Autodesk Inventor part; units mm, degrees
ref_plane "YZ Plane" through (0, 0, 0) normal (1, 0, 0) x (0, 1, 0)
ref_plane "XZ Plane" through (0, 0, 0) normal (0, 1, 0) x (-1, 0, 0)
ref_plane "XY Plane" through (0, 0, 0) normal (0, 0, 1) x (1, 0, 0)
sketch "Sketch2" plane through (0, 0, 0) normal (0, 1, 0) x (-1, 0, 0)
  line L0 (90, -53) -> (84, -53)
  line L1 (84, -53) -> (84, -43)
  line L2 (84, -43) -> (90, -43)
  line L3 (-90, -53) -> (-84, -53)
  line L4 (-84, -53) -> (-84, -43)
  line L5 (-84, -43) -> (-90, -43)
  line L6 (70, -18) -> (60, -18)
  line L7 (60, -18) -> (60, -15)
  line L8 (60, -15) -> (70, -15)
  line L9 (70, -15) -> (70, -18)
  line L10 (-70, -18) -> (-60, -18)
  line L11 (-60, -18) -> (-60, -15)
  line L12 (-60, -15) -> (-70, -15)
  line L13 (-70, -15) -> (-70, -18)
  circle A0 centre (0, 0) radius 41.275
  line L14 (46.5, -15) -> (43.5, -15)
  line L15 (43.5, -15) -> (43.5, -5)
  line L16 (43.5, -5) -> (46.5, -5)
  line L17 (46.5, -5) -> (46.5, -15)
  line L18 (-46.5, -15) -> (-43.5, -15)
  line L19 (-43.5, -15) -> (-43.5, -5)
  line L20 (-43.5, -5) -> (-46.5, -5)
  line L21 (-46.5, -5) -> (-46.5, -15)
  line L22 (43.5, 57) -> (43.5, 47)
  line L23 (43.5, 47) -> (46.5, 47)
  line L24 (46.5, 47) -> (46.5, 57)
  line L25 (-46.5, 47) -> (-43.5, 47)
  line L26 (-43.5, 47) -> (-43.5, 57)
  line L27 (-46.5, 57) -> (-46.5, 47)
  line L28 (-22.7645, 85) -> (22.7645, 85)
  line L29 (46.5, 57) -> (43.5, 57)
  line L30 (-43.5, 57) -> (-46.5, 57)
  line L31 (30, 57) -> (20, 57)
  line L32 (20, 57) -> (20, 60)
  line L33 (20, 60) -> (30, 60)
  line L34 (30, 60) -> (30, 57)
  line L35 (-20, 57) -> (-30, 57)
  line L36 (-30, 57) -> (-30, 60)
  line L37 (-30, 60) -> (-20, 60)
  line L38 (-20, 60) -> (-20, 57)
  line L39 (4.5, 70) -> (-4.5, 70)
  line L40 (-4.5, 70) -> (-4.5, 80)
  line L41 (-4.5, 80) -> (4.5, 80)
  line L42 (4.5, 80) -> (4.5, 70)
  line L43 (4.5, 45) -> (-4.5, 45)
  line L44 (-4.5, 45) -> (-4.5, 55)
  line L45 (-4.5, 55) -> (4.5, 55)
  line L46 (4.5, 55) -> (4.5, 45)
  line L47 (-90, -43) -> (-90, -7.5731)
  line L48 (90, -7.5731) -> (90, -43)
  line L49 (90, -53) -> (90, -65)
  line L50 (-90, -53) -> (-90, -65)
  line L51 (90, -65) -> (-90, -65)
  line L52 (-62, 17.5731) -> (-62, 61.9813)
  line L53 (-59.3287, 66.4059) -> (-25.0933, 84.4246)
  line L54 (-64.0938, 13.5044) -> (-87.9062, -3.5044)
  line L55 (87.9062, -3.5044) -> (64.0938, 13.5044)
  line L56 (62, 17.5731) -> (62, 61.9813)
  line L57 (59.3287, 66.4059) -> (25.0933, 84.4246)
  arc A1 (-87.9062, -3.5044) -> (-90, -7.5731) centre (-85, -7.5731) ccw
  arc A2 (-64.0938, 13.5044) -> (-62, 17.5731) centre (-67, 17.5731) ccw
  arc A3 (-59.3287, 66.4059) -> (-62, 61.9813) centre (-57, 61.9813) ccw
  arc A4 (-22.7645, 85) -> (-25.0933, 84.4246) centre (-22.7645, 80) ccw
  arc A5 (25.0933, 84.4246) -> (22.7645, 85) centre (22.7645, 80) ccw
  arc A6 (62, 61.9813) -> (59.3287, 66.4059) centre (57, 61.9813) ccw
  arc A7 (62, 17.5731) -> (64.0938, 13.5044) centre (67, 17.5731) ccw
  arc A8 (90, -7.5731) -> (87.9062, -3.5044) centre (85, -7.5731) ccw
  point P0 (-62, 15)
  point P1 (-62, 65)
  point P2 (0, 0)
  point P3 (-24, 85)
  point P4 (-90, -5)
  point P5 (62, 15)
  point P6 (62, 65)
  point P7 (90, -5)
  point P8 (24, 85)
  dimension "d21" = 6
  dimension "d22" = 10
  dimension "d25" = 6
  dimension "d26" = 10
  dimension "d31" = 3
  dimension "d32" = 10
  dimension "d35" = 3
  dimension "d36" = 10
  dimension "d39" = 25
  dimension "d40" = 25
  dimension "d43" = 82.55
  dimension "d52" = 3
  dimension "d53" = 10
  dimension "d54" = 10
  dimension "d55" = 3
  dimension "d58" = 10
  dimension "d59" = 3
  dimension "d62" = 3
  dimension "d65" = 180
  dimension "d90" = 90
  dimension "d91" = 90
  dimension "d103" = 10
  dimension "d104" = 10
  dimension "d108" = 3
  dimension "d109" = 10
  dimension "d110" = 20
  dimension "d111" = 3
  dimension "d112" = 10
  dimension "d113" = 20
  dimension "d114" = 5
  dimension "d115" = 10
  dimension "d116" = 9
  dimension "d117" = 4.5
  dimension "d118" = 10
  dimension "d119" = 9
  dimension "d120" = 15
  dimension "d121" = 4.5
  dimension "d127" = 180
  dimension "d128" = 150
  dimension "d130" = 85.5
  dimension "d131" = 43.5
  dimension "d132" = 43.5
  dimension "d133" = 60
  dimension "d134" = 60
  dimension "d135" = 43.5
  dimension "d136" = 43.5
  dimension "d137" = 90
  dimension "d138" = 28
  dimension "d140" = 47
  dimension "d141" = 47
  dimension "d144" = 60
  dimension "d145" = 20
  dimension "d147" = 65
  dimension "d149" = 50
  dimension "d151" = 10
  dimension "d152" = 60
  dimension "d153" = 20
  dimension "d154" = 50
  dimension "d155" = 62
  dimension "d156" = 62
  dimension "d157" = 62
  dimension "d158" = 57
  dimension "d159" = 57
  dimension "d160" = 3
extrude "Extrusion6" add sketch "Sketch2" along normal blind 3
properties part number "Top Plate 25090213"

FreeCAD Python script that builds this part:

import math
import FreeCAD as App
import Part
import Sketcher

V = App.Vector


def add_polygon(sketch, points):
    """Adds a closed chain of lines whose ends are joined by coincident constraints."""
    first, n = sketch.GeometryCount, len(points)
    for a, b in zip(points, points[1:] + points[:1]):
        sketch.addGeometry(Part.LineSegment(App.Vector(*a, 0), App.Vector(*b, 0)), False)
    for i in range(n):
        sketch.addConstraint(Sketcher.Constraint("Coincident", first + i, 2, first + (i + 1) % n, 1))

doc = App.newDocument("Part")
body = doc.addObject("PartDesign::Body", "Body")

# Sketch on XZ plane
sketch1 = body.newObject("Sketcher::SketchObject", "Sketch")
sketch1.AttachmentSupport = (doc.getObject("XZ_Plane"), [""])
sketch1.MapMode = "FlatFace"
sketch1.addGeometry(Part.LineSegment(V(-90, -65, 0), V(-90, -53, 0)), False)  # 0
sketch1.addGeometry(Part.LineSegment(V(-90, -53, 0), V(-84, -53, 0)), False)  # 1
sketch1.addGeometry(Part.LineSegment(V(-84, -53, 0), V(-84, -43, 0)), False)  # 2
sketch1.addGeometry(Part.LineSegment(V(-84, -43, 0), V(-90, -43, 0)), False)  # 3
sketch1.addGeometry(Part.LineSegment(V(-90, -43, 0), V(-90, -7.6, 0)), False)  # 4
sketch1.addGeometry(Part.ArcOfCircle(Part.Circle(V(-85, -7.6, 0), V(0, 0, 1), 5), math.radians(126), math.radians(180)), False)  # 5
sketch1.addGeometry(Part.LineSegment(V(-87.9, -3.5, 0), V(-64.1, 13.5, 0)), False)  # 6
sketch1.addGeometry(Part.ArcOfCircle(Part.Circle(V(-67, 17.6, 0), V(0, 0, 1), 5), math.radians(-54), math.radians(0)), False)  # 7
sketch1.addGeometry(Part.LineSegment(V(-62, 17.6, 0), V(-62, 62, 0)), False)  # 8
sketch1.addGeometry(Part.ArcOfCircle(Part.Circle(V(-57, 62, 0), V(0, 0, 1), 5), math.radians(118), math.radians(180)), False)  # 9
sketch1.addGeometry(Part.LineSegment(V(-59.3, 66.4, 0), V(-25.1, 84.4, 0)), False)  # 10
sketch1.addGeometry(Part.ArcOfCircle(Part.Circle(V(-22.8, 80, 0), V(0, 0, 1), 5), math.radians(90), math.radians(118)), False)  # 11
sketch1.addGeometry(Part.LineSegment(V(-22.8, 85, 0), V(22.8, 85, 0)), False)  # 12
sketch1.addGeometry(Part.ArcOfCircle(Part.Circle(V(22.8, 80, 0), V(0, 0, 1), 5), math.radians(62), math.radians(90)), False)  # 13
sketch1.addGeometry(Part.LineSegment(V(25.1, 84.4, 0), V(59.3, 66.4, 0)), False)  # 14
sketch1.addGeometry(Part.ArcOfCircle(Part.Circle(V(57, 62, 0), V(0, 0, 1), 5), math.radians(0), math.radians(62)), False)  # 15
sketch1.addGeometry(Part.LineSegment(V(62, 62, 0), V(62, 17.6, 0)), False)  # 16
sketch1.addGeometry(Part.ArcOfCircle(Part.Circle(V(67, 17.6, 0), V(0, 0, 1), 5), math.radians(180), math.radians(234)), False)  # 17
sketch1.addGeometry(Part.LineSegment(V(64.1, 13.5, 0), V(87.9, -3.5, 0)), False)  # 18
sketch1.addGeometry(Part.ArcOfCircle(Part.Circle(V(85, -7.6, 0), V(0, 0, 1), 5), math.radians(0), math.radians(54)), False)  # 19
sketch1.addGeometry(Part.LineSegment(V(90, -7.6, 0), V(90, -43, 0)), False)  # 20
sketch1.addGeometry(Part.LineSegment(V(90, -43, 0), V(84, -43, 0)), False)  # 21
sketch1.addGeometry(Part.LineSegment(V(84, -43, 0), V(84, -53, 0)), False)  # 22
sketch1.addGeometry(Part.LineSegment(V(84, -53, 0), V(90, -53, 0)), False)  # 23
sketch1.addGeometry(Part.LineSegment(V(90, -53, 0), V(90, -65, 0)), False)  # 24
sketch1.addGeometry(Part.LineSegment(V(90, -65, 0), V(-90, -65, 0)), False)  # 25
add_polygon(sketch1, [(60, -18), (70, -18), (70, -15), (60, -15)])  # lines 26-29
add_polygon(sketch1, [(43.5, -15), (46.5, -15), (46.5, -5), (43.5, -5)])  # lines 30-33
sketch1.addGeometry(Part.Circle(V(0, 0, 0), V(0, 0, 1), 41.3), False)  # 34
add_polygon(sketch1, [(-46.5, -5), (-46.5, -15), (-43.5, -15), (-43.5, -5)])  # lines 35-38
add_polygon(sketch1, [(-70, -15), (-70, -18), (-60, -18), (-60, -15)])  # lines 39-42
add_polygon(sketch1, [(43.5, 47), (46.5, 47), (46.5, 57), (43.5, 57)])  # lines 43-46
add_polygon(sketch1, [(20, 60), (20, 57), (30, 57), (30, 60)])  # lines 47-50
add_polygon(sketch1, [(-4.5, 55), (-4.5, 45), (4.5, 45), (4.5, 55)])  # lines 51-54
add_polygon(sketch1, [(-30, 60), (-30, 57), (-20, 57), (-20, 60)])  # lines 55-58
add_polygon(sketch1, [(-4.5, 80), (-4.5, 70), (4.5, 70), (4.5, 80)])  # lines 59-62
add_polygon(sketch1, [(-43.5, 47), (-43.5, 57), (-46.5, 57), (-46.5, 47)])  # lines 63-66
sketch1.addConstraint(Sketcher.Constraint("Coincident", 0, 2, 1, 1))
sketch1.addConstraint(Sketcher.Constraint("Coincident", 1, 2, 2, 1))
sketch1.addConstraint(Sketcher.Constraint("Coincident", 2, 2, 3, 1))
sketch1.addConstraint(Sketcher.Constraint("Coincident", 3, 2, 4, 1))
sketch1.addConstraint(Sketcher.Constraint("Tangent", 4, 2, 5, 2))
sketch1.addConstraint(Sketcher.Constraint("Tangent", 5, 1, 6, 1))
sketch1.addConstraint(Sketcher.Constraint("Tangent", 6, 2, 7, 1))
sketch1.addConstraint(Sketcher.Constraint("Tangent", 7, 2, 8, 1))
sketch1.addConstraint(Sketcher.Constraint("Tangent", 8, 2, 9, 2))
sketch1.addConstraint(Sketcher.Constraint("Tangent", 9, 1, 10, 1))
sketch1.addConstraint(Sketcher.Constraint("Tangent", 10, 2, 11, 2))
sketch1.addConstraint(Sketcher.Constraint("Tangent", 11, 1, 12, 1))
sketch1.addConstraint(Sketcher.Constraint("Tangent", 12, 2, 13, 2))
sketch1.addConstraint(Sketcher.Constraint("Tangent", 13, 1, 14, 1))
sketch1.addConstraint(Sketcher.Constraint("Tangent", 14, 2, 15, 2))
sketch1.addConstraint(Sketcher.Constraint("Tangent", 15, 1, 16, 1))
sketch1.addConstraint(Sketcher.Constraint("Tangent", 16, 2, 17, 1))
sketch1.addConstraint(Sketcher.Constraint("Tangent", 17, 2, 18, 1))
sketch1.addConstraint(Sketcher.Constraint("Tangent", 18, 2, 19, 2))
sketch1.addConstraint(Sketcher.Constraint("Tangent", 19, 1, 20, 1))
sketch1.addConstraint(Sketcher.Constraint("Coincident", 20, 2, 21, 1))
sketch1.addConstraint(Sketcher.Constraint("Coincident", 21, 2, 22, 1))
sketch1.addConstraint(Sketcher.Constraint("Coincident", 22, 2, 23, 1))
sketch1.addConstraint(Sketcher.Constraint("Coincident", 23, 2, 24, 1))
sketch1.addConstraint(Sketcher.Constraint("Coincident", 24, 2, 25, 1))
sketch1.addConstraint(Sketcher.Constraint("Coincident", 25, 2, 0, 1))
sketch1.addConstraint(Sketcher.Constraint("Vertical", 0))
sketch1.addConstraint(Sketcher.Constraint("Horizontal", 1))
sketch1.addConstraint(Sketcher.Constraint("Vertical", 2))
sketch1.addConstraint(Sketcher.Constraint("Horizontal", 3))
sketch1.addConstraint(Sketcher.Constraint("Vertical", 4))
sketch1.addConstraint(Sketcher.Constraint("Vertical", 8))
sketch1.addConstraint(Sketcher.Constraint("Horizontal", 12))
sketch1.addConstraint(Sketcher.Constraint("Vertical", 16))
sketch1.addConstraint(Sketcher.Constraint("Vertical", 20))
sketch1.addConstraint(Sketcher.Constraint("Horizontal", 21))
sketch1.addConstraint(Sketcher.Constraint("Vertical", 22))
sketch1.addConstraint(Sketcher.Constraint("Horizontal", 23))
sketch1.addConstraint(Sketcher.Constraint("Vertical", 24))
sketch1.addConstraint(Sketcher.Constraint("Horizontal", 25))
sketch1.addConstraint(Sketcher.Constraint("Horizontal", 26))
sketch1.addConstraint(Sketcher.Constraint("Vertical", 27))
sketch1.addConstraint(Sketcher.Constraint("Horizontal", 28))
sketch1.addConstraint(Sketcher.Constraint("Vertical", 29))
sketch1.addConstraint(Sketcher.Constraint("Horizontal", 30))
sketch1.addConstraint(Sketcher.Constraint("Vertical", 31))
sketch1.addConstraint(Sketcher.Constraint("Horizontal", 32))
sketch1.addConstraint(Sketcher.Constraint("Vertical", 33))
sketch1.addConstraint(Sketcher.Constraint("Vertical", 35))
sketch1.addConstraint(Sketcher.Constraint("Horizontal", 36))
sketch1.addConstraint(Sketcher.Constraint("Vertical", 37))
sketch1.addConstraint(Sketcher.Constraint("Horizontal", 38))
sketch1.addConstraint(Sketcher.Constraint("Vertical", 39))
sketch1.addConstraint(Sketcher.Constraint("Horizontal", 40))
sketch1.addConstraint(Sketcher.Constraint("Vertical", 41))
sketch1.addConstraint(Sketcher.Constraint("Horizontal", 42))
sketch1.addConstraint(Sketcher.Constraint("Horizontal", 43))
sketch1.addConstraint(Sketcher.Constraint("Vertical", 44))
sketch1.addConstraint(Sketcher.Constraint("Horizontal", 45))
sketch1.addConstraint(Sketcher.Constraint("Vertical", 46))
sketch1.addConstraint(Sketcher.Constraint("Vertical", 47))
sketch1.addConstraint(Sketcher.Constraint("Horizontal", 48))
sketch1.addConstraint(Sketcher.Constraint("Vertical", 49))
sketch1.addConstraint(Sketcher.Constraint("Horizontal", 50))
sketch1.addConstraint(Sketcher.Constraint("Vertical", 51))
sketch1.addConstraint(Sketcher.Constraint("Horizontal", 52))
sketch1.addConstraint(Sketcher.Constraint("Vertical", 53))
sketch1.addConstraint(Sketcher.Constraint("Horizontal", 54))
sketch1.addConstraint(Sketcher.Constraint("Vertical", 55))
sketch1.addConstraint(Sketcher.Constraint("Horizontal", 56))
sketch1.addConstraint(Sketcher.Constraint("Vertical", 57))
sketch1.addConstraint(Sketcher.Constraint("Horizontal", 58))
sketch1.addConstraint(Sketcher.Constraint("Vertical", 59))
sketch1.addConstraint(Sketcher.Constraint("Horizontal", 60))
sketch1.addConstraint(Sketcher.Constraint("Vertical", 61))
sketch1.addConstraint(Sketcher.Constraint("Horizontal", 62))
sketch1.addConstraint(Sketcher.Constraint("Vertical", 63))
sketch1.addConstraint(Sketcher.Constraint("Horizontal", 64))
sketch1.addConstraint(Sketcher.Constraint("Vertical", 65))
sketch1.addConstraint(Sketcher.Constraint("Horizontal", 66))
sketch1.addConstraint(Sketcher.Constraint("Coincident", 34, 3, -1, 1))
sketch1.addConstraint(Sketcher.Constraint("Equal", 5, 7))
sketch1.addConstraint(Sketcher.Constraint("Equal", 7, 9))
sketch1.addConstraint(Sketcher.Constraint("Equal", 9, 11))
sketch1.addConstraint(Sketcher.Constraint("Equal", 11, 13))
sketch1.addConstraint(Sketcher.Constraint("Equal", 13, 15))
sketch1.addConstraint(Sketcher.Constraint("Equal", 15, 17))
sketch1.addConstraint(Sketcher.Constraint("Equal", 17, 19))
sketch1.addConstraint(Sketcher.Constraint("Symmetric", 9, 3, 15, 3, -2))
sketch1.addConstraint(Sketcher.Constraint("Symmetric", 5, 3, 19, 3, -2))
sketch1.addConstraint(Sketcher.Constraint("Symmetric", 2, 2, 21, 2, -2))
sketch1.addConstraint(Sketcher.Constraint("Symmetric", 0, 2, 23, 2, -2))
sketch1.addConstraint(Sketcher.Constraint("Symmetric", 30, 2, 35, 2, -2))
sketch1.addConstraint(Sketcher.Constraint("Symmetric", 32, 2, 37, 2, -2))
sketch1.addConstraint(Sketcher.Constraint("Symmetric", 26, 2, 39, 2, -2))
sketch1.addConstraint(Sketcher.Constraint("Symmetric", 28, 2, 41, 2, -2))
sketch1.addConstraint(Sketcher.Constraint("Symmetric", 48, 2, 55, 2, -2))
sketch1.addConstraint(Sketcher.Constraint("Symmetric", 50, 2, 57, 2, -2))
sketch1.addConstraint(Sketcher.Constraint("Symmetric", 45, 2, 63, 2, -2))
sketch1.addConstraint(Sketcher.Constraint("Symmetric", 43, 2, 65, 2, -2))
sketch1.addConstraint(Sketcher.Constraint("Horizontal", 7, 3, 17, 3))
sketch1.addConstraint(Sketcher.Constraint("Horizontal", 10, 2, 13, 1))
sketch1.addConstraint(Sketcher.Constraint("Horizontal", 28, 2, 30, 2))
sketch1.addConstraint(Sketcher.Constraint("Horizontal", 45, 2, 47, 2))
sketch1.addConstraint(Sketcher.Constraint("Horizontal", 13, 3, 61, 2))
sketch1.addConstraint(Sketcher.Constraint("Vertical", 0, 2, 3, 2))
sketch1.addConstraint(Sketcher.Constraint("Vertical", 31, 2, 43, 2))
sketch1.addConstraint(Sketcher.Constraint("Vertical", 33, 2, 45, 2))
sketch1.addConstraint(Sketcher.Constraint("Vertical", 54, 2, 59, 2))
sketch1.addConstraint(Sketcher.Constraint("Vertical", 53, 2, 60, 2))
sketch1.addConstraint(Sketcher.Constraint("Equal", 42, 48))
sketch1.addConstraint(Sketcher.Constraint("Equal", 58, 2))
sketch1.addConstraint(Sketcher.Constraint("Equal", 66, 27))
sketch1.addConstraint(Sketcher.Constraint("Equal", 22, 31))
sketch1.addConstraint(Sketcher.Constraint("Equal", 37, 44))
sketch1.addConstraint(Sketcher.Constraint("Equal", 41, 47))
sketch1.addConstraint(Sketcher.Constraint("Equal", 46, 51))
sketch1.addConstraint(Sketcher.Constraint("Equal", 53, 59))
sketch1.addConstraint(Sketcher.Constraint("Radius", 5, 5.0))
sketch1.addConstraint(Sketcher.Constraint("Diameter", 34, 82.55))
sketch1.addConstraint(Sketcher.Constraint("DistanceX", 1, 1, 1, 2, 6.0))
sketch1.addConstraint(Sketcher.Constraint("DistanceX", 25, 2, 25, 1, 180.0))
sketch1.addConstraint(Sketcher.Constraint("DistanceX", 26, 1, 26, 2, 10.0))
sketch1.addConstraint(Sketcher.Constraint("DistanceX", 30, 1, 30, 2, 3.0))
sketch1.addConstraint(Sketcher.Constraint("DistanceX", 52, 1, 52, 2, 9.0))
sketch1.addConstraint(Sketcher.Constraint("DistanceX", 9, 3, -1, 1, 57.0))
sketch1.addConstraint(Sketcher.Constraint("DistanceY", 24, 2, -1, 1, 65.0))
sketch1.addConstraint(Sketcher.Constraint("DistanceY", 27, 2, -1, 1, 15.0))
sketch1.addConstraint(Sketcher.Constraint("DistanceX", -1, 1, 28, 2, 60.0))
sketch1.addConstraint(Sketcher.Constraint("DistanceY", -1, 1, 43, 2, 47.0))
sketch1.addConstraint(Sketcher.Constraint("DistanceX", -1, 1, 47, 2, 20.0))
sketch1.addConstraint(Sketcher.Constraint("DistanceX", -1, 1, 32, 2, 43.5))
sketch1.addConstraint(Sketcher.Constraint("DistanceX", 51, 2, -1, 1, 4.5))
sketch1.addConstraint(Sketcher.Constraint("DistanceY", 0, 1, 0, 2, 12.0))
sketch1.addConstraint(Sketcher.Constraint("DistanceY", -1, 1, 11, 3, 80.0))
sketch1.addConstraint(Sketcher.Constraint("DistanceY", -1, 1, 51, 2, 45.0))
sketch1.addConstraint(Sketcher.Constraint("DistanceX", 12, 1, 12, 2, 45.529))
sketch1.addConstraint(Sketcher.Constraint("DistanceY", 4, 1, 4, 2, 35.427))
sketch1.addConstraint(Sketcher.Constraint("Distance", 6, 29.263))
sketch1.addConstraint(Sketcher.Constraint("DistanceY", 8, 1, 8, 2, 44.4082))
pad1 = body.newObject("PartDesign::Pad", "Pad")
pad1.Profile = sketch1
pad1.Length = 3
pad1.Reversed = True

doc.recompute()
